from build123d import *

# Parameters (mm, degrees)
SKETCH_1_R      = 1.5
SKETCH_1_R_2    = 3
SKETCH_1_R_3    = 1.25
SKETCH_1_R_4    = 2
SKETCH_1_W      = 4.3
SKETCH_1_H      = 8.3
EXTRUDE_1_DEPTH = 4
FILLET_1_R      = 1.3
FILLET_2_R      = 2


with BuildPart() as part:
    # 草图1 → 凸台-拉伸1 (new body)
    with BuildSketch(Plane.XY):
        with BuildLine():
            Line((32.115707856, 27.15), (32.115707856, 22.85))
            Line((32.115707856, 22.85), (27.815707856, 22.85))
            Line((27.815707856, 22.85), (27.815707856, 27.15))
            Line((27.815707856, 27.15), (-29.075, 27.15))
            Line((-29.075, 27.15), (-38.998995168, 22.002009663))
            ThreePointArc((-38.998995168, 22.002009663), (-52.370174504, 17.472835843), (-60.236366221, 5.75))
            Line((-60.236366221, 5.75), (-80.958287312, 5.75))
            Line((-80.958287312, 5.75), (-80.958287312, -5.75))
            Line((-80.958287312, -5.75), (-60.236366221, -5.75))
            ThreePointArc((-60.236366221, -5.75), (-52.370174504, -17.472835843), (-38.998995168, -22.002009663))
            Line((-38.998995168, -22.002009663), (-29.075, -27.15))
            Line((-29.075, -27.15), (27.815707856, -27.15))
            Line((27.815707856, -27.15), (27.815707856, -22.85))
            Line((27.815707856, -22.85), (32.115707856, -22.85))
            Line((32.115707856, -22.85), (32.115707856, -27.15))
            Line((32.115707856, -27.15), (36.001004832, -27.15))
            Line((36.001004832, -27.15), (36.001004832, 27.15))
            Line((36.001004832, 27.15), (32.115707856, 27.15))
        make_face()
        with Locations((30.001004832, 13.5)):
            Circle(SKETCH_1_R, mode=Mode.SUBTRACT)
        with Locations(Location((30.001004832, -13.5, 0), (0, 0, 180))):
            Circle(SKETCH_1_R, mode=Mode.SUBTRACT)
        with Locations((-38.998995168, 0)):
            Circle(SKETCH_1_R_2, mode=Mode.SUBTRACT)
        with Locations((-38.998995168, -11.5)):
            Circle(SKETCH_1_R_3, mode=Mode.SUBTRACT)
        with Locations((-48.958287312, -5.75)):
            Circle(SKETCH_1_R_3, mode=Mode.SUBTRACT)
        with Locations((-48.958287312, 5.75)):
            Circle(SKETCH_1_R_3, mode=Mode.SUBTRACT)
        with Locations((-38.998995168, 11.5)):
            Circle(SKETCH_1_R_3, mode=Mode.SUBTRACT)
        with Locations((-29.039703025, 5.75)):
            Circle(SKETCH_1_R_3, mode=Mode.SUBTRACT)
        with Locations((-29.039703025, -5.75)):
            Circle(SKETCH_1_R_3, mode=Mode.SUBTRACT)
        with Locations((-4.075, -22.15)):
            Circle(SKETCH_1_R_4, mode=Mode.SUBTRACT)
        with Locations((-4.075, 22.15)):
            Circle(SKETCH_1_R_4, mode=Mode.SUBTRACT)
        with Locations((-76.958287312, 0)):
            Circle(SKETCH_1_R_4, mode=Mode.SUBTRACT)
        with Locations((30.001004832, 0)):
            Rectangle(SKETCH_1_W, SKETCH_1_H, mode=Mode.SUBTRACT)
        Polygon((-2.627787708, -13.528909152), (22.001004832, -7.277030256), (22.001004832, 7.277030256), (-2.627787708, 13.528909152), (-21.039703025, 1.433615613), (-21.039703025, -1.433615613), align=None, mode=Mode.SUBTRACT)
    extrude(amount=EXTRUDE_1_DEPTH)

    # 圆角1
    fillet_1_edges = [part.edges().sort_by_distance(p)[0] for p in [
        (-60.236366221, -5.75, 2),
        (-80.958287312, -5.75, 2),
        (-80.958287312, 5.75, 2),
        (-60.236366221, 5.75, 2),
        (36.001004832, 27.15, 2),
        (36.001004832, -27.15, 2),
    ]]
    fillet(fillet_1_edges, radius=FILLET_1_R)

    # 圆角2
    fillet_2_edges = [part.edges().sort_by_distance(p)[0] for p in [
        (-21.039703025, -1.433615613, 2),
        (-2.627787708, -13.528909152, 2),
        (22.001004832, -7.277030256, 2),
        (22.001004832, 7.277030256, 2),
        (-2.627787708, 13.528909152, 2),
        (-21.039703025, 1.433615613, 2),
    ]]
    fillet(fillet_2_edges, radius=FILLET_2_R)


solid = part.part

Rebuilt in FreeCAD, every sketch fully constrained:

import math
import FreeCAD as App
import Part
import Sketcher

V = App.Vector


def edges_at(feature, points):
    """Names of the edges that pass closest to the given points."""
    edges = feature.Shape.Edges
    near = lambda p: min(range(len(edges)), key=lambda i: edges[i].distToShape(Part.Vertex(*p))[0])
    return sorted({f"Edge{near(p) + 1}" for p in points})

doc = App.newDocument("Part")
params = doc.addObject("Spreadsheet::Sheet", "Params")
for row, (alias, value) in enumerate([
    ("sketch1_diameter", "4 mm"),
    ("sketch1_diameter2", "6 mm"),
    ("sketch1_diameter3", "3 mm"),
    ("sketch1_diameter4", "2.5 mm"),
    ("sketch1_width", "4.3 mm"),
    ("pad1_length", "4 mm"),
    ("fillet_radius", "1.3 mm"),
    ("fillet2_radius", "2 mm"),
], start=1):
    params.set(f"A{row}", alias)
    params.set(f"B{row}", "=" + value)
    params.setAlias(f"B{row}", alias)

body = doc.addObject("PartDesign::Body", "Body")

# Sketch on XY plane
sketch1 = body.newObject("Sketcher::SketchObject", "Sketch")
sketch1.AttachmentSupport = (doc.getObject("XY_Plane"), [""])
sketch1.MapMode = "FlatFace"
sketch1.addGeometry([
    Part.LineSegment(V(32.115708, 27.15, 0), V(32.115708, 22.85, 0)),  # 0
    Part.LineSegment(V(32.115708, 22.85, 0), V(27.815708, 22.85, 0)),  # 1
    Part.LineSegment(V(27.815708, 22.85, 0), V(27.815708, 27.15, 0)),  # 2
    Part.LineSegment(V(27.815708, 27.15, 0), V(-29.075, 27.15, 0)),  # 3
    Part.LineSegment(V(-29.075, 27.15, 0), V(-38.998995, 22.00201, 0)),  # 4
    Part.ArcOfCircle(Part.Circle(V(-38.998995, 0, 0), V(0, 0, 1), 22.00201), math.radians(90), math.radians(164.850426)),  # 5
    Part.LineSegment(V(-60.236366, 5.75, 0), V(-80.958287, 5.75, 0)),  # 6
    Part.LineSegment(V(-80.958287, 5.75, 0), V(-80.958287, -5.75, 0)),  # 7
    Part.LineSegment(V(-80.958287, -5.75, 0), V(-60.236366, -5.75, 0)),  # 8
    Part.ArcOfCircle(Part.Circle(V(-38.998995, 0, 0), V(0, 0, 1), 22.00201), math.radians(-164.850426), math.radians(-90)),  # 9
    Part.LineSegment(V(-38.998995, -22.00201, 0), V(-29.075, -27.15, 0)),  # 10
    Part.LineSegment(V(-29.075, -27.15, 0), V(27.815708, -27.15, 0)),  # 11
    Part.LineSegment(V(27.815708, -27.15, 0), V(27.815708, -22.85, 0)),  # 12
    Part.LineSegment(V(27.815708, -22.85, 0), V(32.115708, -22.85, 0)),  # 13
    Part.LineSegment(V(32.115708, -22.85, 0), V(32.115708, -27.15, 0)),  # 14
    Part.LineSegment(V(32.115708, -27.15, 0), V(36.001005, -27.15, 0)),  # 15
    Part.LineSegment(V(36.001005, -27.15, 0), V(36.001005, 27.15, 0)),  # 16
    Part.LineSegment(V(36.001005, 27.15, 0), V(32.115708, 27.15, 0)),  # 17
    Part.Circle(V(-76.958287, 0, 0), V(0, 0, 1), 2),  # 18
    Part.Circle(V(-38.998995, -11.5, 0), V(0, 0, 1), 1.25),  # 19
    Part.Circle(V(-48.958287, -5.75, 0), V(0, 0, 1), 1.25),  # 20
    Part.Circle(V(-38.998995, 0, 0), V(0, 0, 1), 3),  # 21
    Part.Circle(V(-29.039703, -5.75, 0), V(0, 0, 1), 1.25),  # 22
    Part.Circle(V(-4.075, -22.15, 0), V(0, 0, 1), 2),  # 23
    Part.Circle(V(30.001005, -13.5, 0), V(0, 0, 1), 1.5),  # 24
    Part.LineSegment(V(22.001005, -7.27703, 0), V(-2.627788, -13.528909, 0)),  # 25
    Part.LineSegment(V(-2.627788, -13.528909, 0), V(-21.039703, -1.433616, 0)),  # 26
    Part.LineSegment(V(-21.039703, -1.433616, 0), V(-21.039703, 1.433616, 0)),  # 27
    Part.LineSegment(V(-21.039703, 1.433616, 0), V(-2.627788, 13.528909, 0)),  # 28
    Part.LineSegment(V(-2.627788, 13.528909, 0), V(22.001005, 7.27703, 0)),  # 29
    Part.LineSegment(V(22.001005, 7.27703, 0), V(22.001005, -7.27703, 0)),  # 30
    Part.LineSegment(V(32.151005, -4.15, 0), V(27.851005, -4.15, 0)),  # 31
    Part.LineSegment(V(27.851005, -4.15, 0), V(27.851005, 4.15, 0)),  # 32
    Part.LineSegment(V(27.851005, 4.15, 0), V(32.151005, 4.15, 0)),  # 33
    Part.LineSegment(V(32.151005, 4.15, 0), V(32.151005, -4.15, 0)),  # 34
    Part.Circle(V(-48.958287, 5.75, 0), V(0, 0, 1), 1.25),  # 35
    Part.Circle(V(-29.039703, 5.75, 0), V(0, 0, 1), 1.25),  # 36
    Part.Circle(V(-38.998995, 11.5, 0), V(0, 0, 1), 1.25),  # 37
    Part.Circle(V(-4.075, 22.15, 0), V(0, 0, 1), 2),  # 38
    Part.Circle(V(30.001005, 13.5, 0), V(0, 0, 1), 1.5),  # 39
], False)
sketch1.addConstraint([
    Sketcher.Constraint("Coincident", 0, 2, 1, 1),
    Sketcher.Constraint("Coincident", 1, 2, 2, 1),
    Sketcher.Constraint("Coincident", 2, 2, 3, 1),
    Sketcher.Constraint("Coincident", 3, 2, 4, 1),
    Sketcher.Constraint("Coincident", 4, 2, 5, 1),
    Sketcher.Constraint("Coincident", 5, 2, 6, 1),
    Sketcher.Constraint("Coincident", 6, 2, 7, 1),
    Sketcher.Constraint("Coincident", 7, 2, 8, 1),
    Sketcher.Constraint("Coincident", 8, 2, 9, 1),
    Sketcher.Constraint("Coincident", 9, 2, 10, 1),
    Sketcher.Constraint("Coincident", 10, 2, 11, 1),
    Sketcher.Constraint("Coincident", 11, 2, 12, 1),
    Sketcher.Constraint("Coincident", 12, 2, 13, 1),
    Sketcher.Constraint("Coincident", 13, 2, 14, 1),
    Sketcher.Constraint("Coincident", 14, 2, 15, 1),
    Sketcher.Constraint("Coincident", 15, 2, 16, 1),
    Sketcher.Constraint("Coincident", 16, 2, 17, 1),
    Sketcher.Constraint("Coincident", 17, 2, 0, 1),
    Sketcher.Constraint("Coincident", 25, 2, 26, 1),
    Sketcher.Constraint("Coincident", 26, 2, 27, 1),
    Sketcher.Constraint("Coincident", 27, 2, 28, 1),
    Sketcher.Constraint("Coincident", 28, 2, 29, 1),
    Sketcher.Constraint("Coincident", 29, 2, 30, 1),
    Sketcher.Constraint("Coincident", 30, 2, 25, 1),
    Sketcher.Constraint("Coincident", 31, 2, 32, 1),
    Sketcher.Constraint("Coincident", 32, 2, 33, 1),
    Sketcher.Constraint("Coincident", 33, 2, 34, 1),
    Sketcher.Constraint("Coincident", 34, 2, 31, 1),
    Sketcher.Constraint("Vertical", 0),
    Sketcher.Constraint("Horizontal", 1),
    Sketcher.Constraint("Vertical", 2),
    Sketcher.Constraint("Horizontal", 3),
    Sketcher.Constraint("Horizontal", 6),
    Sketcher.Constraint("Vertical", 7),
    Sketcher.Constraint("Horizontal", 8),
    Sketcher.Constraint("Horizontal", 11),
    Sketcher.Constraint("Vertical", 12),
    Sketcher.Constraint("Horizontal", 13),
    Sketcher.Constraint("Vertical", 14),
    Sketcher.Constraint("Horizontal", 15),
    Sketcher.Constraint("Vertical", 16),
    Sketcher.Constraint("Horizontal", 17),
    Sketcher.Constraint("Vertical", 27),
    Sketcher.Constraint("Vertical", 30),
    Sketcher.Constraint("Horizontal", 31),
    Sketcher.Constraint("Vertical", 32),
    Sketcher.Constraint("Horizontal", 33),
    Sketcher.Constraint("Vertical", 34),
    Sketcher.Constraint("Coincident", 9, 3, 5, 3),
    Sketcher.Constraint("Coincident", 21, 3, 5, 3),
    Sketcher.Constraint("Equal", 5, 9),
    Sketcher.Constraint("Equal", 19, 20),
    Sketcher.Constraint("Equal", 20, 22),
    Sketcher.Constraint("Equal", 18, 23),
    Sketcher.Constraint("Equal", 22, 35),
    Sketcher.Constraint("Equal", 35, 36),
    Sketcher.Constraint("Equal", 36, 37),
    Sketcher.Constraint("Equal", 23, 38),
    Sketcher.Constraint("Equal", 24, 39),
    Sketcher.Constraint("Symmetric", 20, 3, 35, 3, -1),
    Sketcher.Constraint("Symmetric", 22, 3, 36, 3, -1),
    Sketcher.Constraint("Symmetric", 19, 3, 37, 3, -1),
    Sketcher.Constraint("Symmetric", 23, 3, 38, 3, -1),
    Sketcher.Constraint("Symmetric", 24, 3, 39, 3, -1),
    Sketcher.Constraint("Symmetric", 5, 2, 8, 2, -1),
    Sketcher.Constraint("Symmetric", 3, 2, 10, 2, -1),
    Sketcher.Constraint("Symmetric", 1, 2, 12, 2, -1),
    Sketcher.Constraint("Symmetric", 14, 2, 17, 2, -1),
    Sketcher.Constraint("Symmetric", 25, 2, 28, 2, -1),
    Sketcher.Constraint("PointOnObject", 18, 3, -1),
    Sketcher.Constraint("Horizontal", 20, 3, 22, 3),
    Sketcher.Constraint("Horizontal", 36, 3, 5, 2),
    Sketcher.Constraint("Horizontal", 11, 2, 14, 2),
    Sketcher.Constraint("Vertical", 9, 3, 19, 3),
    Sketcher.Constraint("Vertical", 37, 3, 4, 2),
    Sketcher.Constraint("Vertical", 4, 2, 9, 2),
    Sketcher.Constraint("Equal", 13, 31),
    Sketcher.Constraint("Equal", 33, 0),
    Sketcher.Constraint("Equal", 26, 28),
    Sketcher.Constraint("Equal", 25, 29),
    Sketcher.Constraint("Diameter", 18, 4.0),
    Sketcher.Constraint("Diameter", 21, 6.0),
    Sketcher.Constraint("Diameter", 24, 3.0),
    Sketcher.Constraint("Diameter", 19, 2.5),
    Sketcher.Constraint("DistanceX", 1, 2, 1, 1, 4.3),
    Sketcher.Constraint("DistanceY", 7, 2, 7, 1, 11.5),
    Sketcher.Constraint("DistanceY", 16, 1, 16, 2, 54.3),
    Sketcher.Constraint("DistanceY", 32, 1, 32, 2, 8.3),
    Sketcher.Constraint("DistanceX", 18, 3, 20, 3, 28.0),
    Sketcher.Constraint("DistanceX", 19, 3, 24, 3, 69.0),
    Sketcher.Constraint("DistanceY", 24, 3, 19, 3, 2.0),
    Sketcher.Constraint("DistanceY", 24, 3, 39, 3, 27.0),
    Sketcher.Constraint("DistanceY", 23, 3, 0, 2, 45.0),
    Sketcher.Constraint("DistanceX", 3, 2, 38, 3, 25.0),
    Sketcher.Constraint("DistanceX", 6, 2, 18, 3, 4.0),
    Sketcher.Constraint("DistanceX", 24, 3, 15, 2, 6.0),
    Sketcher.Constraint("DistanceX", 22, 3, 26, 2, 8.0),
    Sketcher.Constraint("DistanceX", 29, 2, 39, 3, 8.0),
    Sketcher.Constraint("DistanceY", 12, 2, 31, 2, 18.7),
    Sketcher.Constraint("Radius", 5, 22.00201),
    Sketcher.Constraint("DistanceX", 30, 2, 31, 2, 5.85),
    Sketcher.Constraint("DistanceX", 23, 3, -1, 1, 4.075),
    Sketcher.Constraint("DistanceX", 6, 2, 6, 1, 20.721921),
    Sketcher.Constraint("DistanceY", 27, 1, 27, 2, 2.867231),
    Sketcher.Constraint("DistanceY", 30, 2, 30, 1, 14.554061),
    Sketcher.Constraint("Distance", 4, 11.17978),
    Sketcher.Constraint("DistanceX", 3, 2, 3, 1, 56.890708),
    Sketcher.Constraint("DistanceY", 25, 2, -1, 1, 13.528909),
    Sketcher.Constraint("DistanceX", 36, 3, 0, 2, 61.155411),
    Sketcher.Constraint("Distance", 25, 25.409908),
])
sketch1.setExpression("Constraints[80]", "Params.sketch1_diameter")
sketch1.setExpression("Constraints[81]", "Params.sketch1_diameter2")
sketch1.setExpression("Constraints[82]", "Params.sketch1_diameter3")
sketch1.setExpression("Constraints[83]", "Params.sketch1_diameter4")
sketch1.setExpression("Constraints[84]", "Params.sketch1_width")
pad1 = body.newObject("PartDesign::Pad", "Pad")
pad1.Profile = sketch1
pad1.setExpression("Length", "Params.pad1_length")
doc.recompute()

fillet = body.newObject("PartDesign::Fillet", "Fillet")
fillet.Base = (pad1, edges_at(pad1, [
    (-60.236, -5.75, 2),
    (-80.958, -5.75, 2),
    (-80.958, 5.75, 2),
    (-60.236, 5.75, 2),
    (36.001, 27.15, 2),
    (36.001, -27.15, 2),
]))
fillet.setExpression("Radius", "Params.fillet_radius")
doc.recompute()

fillet2 = body.newObject("PartDesign::Fillet", "Fillet001")
fillet2.Base = (fillet, edges_at(fillet, [
    (-21.04, -1.434, 2),
    (-2.628, -13.529, 2),
    (22.001, -7.277, 2),
    (22.001, 7.277, 2),
    (-2.628, 13.529, 2),
    (-21.04, 1.434, 2),
]))
fillet2.setExpression("Radius", "Params.fillet2_radius")

doc.recompute()
